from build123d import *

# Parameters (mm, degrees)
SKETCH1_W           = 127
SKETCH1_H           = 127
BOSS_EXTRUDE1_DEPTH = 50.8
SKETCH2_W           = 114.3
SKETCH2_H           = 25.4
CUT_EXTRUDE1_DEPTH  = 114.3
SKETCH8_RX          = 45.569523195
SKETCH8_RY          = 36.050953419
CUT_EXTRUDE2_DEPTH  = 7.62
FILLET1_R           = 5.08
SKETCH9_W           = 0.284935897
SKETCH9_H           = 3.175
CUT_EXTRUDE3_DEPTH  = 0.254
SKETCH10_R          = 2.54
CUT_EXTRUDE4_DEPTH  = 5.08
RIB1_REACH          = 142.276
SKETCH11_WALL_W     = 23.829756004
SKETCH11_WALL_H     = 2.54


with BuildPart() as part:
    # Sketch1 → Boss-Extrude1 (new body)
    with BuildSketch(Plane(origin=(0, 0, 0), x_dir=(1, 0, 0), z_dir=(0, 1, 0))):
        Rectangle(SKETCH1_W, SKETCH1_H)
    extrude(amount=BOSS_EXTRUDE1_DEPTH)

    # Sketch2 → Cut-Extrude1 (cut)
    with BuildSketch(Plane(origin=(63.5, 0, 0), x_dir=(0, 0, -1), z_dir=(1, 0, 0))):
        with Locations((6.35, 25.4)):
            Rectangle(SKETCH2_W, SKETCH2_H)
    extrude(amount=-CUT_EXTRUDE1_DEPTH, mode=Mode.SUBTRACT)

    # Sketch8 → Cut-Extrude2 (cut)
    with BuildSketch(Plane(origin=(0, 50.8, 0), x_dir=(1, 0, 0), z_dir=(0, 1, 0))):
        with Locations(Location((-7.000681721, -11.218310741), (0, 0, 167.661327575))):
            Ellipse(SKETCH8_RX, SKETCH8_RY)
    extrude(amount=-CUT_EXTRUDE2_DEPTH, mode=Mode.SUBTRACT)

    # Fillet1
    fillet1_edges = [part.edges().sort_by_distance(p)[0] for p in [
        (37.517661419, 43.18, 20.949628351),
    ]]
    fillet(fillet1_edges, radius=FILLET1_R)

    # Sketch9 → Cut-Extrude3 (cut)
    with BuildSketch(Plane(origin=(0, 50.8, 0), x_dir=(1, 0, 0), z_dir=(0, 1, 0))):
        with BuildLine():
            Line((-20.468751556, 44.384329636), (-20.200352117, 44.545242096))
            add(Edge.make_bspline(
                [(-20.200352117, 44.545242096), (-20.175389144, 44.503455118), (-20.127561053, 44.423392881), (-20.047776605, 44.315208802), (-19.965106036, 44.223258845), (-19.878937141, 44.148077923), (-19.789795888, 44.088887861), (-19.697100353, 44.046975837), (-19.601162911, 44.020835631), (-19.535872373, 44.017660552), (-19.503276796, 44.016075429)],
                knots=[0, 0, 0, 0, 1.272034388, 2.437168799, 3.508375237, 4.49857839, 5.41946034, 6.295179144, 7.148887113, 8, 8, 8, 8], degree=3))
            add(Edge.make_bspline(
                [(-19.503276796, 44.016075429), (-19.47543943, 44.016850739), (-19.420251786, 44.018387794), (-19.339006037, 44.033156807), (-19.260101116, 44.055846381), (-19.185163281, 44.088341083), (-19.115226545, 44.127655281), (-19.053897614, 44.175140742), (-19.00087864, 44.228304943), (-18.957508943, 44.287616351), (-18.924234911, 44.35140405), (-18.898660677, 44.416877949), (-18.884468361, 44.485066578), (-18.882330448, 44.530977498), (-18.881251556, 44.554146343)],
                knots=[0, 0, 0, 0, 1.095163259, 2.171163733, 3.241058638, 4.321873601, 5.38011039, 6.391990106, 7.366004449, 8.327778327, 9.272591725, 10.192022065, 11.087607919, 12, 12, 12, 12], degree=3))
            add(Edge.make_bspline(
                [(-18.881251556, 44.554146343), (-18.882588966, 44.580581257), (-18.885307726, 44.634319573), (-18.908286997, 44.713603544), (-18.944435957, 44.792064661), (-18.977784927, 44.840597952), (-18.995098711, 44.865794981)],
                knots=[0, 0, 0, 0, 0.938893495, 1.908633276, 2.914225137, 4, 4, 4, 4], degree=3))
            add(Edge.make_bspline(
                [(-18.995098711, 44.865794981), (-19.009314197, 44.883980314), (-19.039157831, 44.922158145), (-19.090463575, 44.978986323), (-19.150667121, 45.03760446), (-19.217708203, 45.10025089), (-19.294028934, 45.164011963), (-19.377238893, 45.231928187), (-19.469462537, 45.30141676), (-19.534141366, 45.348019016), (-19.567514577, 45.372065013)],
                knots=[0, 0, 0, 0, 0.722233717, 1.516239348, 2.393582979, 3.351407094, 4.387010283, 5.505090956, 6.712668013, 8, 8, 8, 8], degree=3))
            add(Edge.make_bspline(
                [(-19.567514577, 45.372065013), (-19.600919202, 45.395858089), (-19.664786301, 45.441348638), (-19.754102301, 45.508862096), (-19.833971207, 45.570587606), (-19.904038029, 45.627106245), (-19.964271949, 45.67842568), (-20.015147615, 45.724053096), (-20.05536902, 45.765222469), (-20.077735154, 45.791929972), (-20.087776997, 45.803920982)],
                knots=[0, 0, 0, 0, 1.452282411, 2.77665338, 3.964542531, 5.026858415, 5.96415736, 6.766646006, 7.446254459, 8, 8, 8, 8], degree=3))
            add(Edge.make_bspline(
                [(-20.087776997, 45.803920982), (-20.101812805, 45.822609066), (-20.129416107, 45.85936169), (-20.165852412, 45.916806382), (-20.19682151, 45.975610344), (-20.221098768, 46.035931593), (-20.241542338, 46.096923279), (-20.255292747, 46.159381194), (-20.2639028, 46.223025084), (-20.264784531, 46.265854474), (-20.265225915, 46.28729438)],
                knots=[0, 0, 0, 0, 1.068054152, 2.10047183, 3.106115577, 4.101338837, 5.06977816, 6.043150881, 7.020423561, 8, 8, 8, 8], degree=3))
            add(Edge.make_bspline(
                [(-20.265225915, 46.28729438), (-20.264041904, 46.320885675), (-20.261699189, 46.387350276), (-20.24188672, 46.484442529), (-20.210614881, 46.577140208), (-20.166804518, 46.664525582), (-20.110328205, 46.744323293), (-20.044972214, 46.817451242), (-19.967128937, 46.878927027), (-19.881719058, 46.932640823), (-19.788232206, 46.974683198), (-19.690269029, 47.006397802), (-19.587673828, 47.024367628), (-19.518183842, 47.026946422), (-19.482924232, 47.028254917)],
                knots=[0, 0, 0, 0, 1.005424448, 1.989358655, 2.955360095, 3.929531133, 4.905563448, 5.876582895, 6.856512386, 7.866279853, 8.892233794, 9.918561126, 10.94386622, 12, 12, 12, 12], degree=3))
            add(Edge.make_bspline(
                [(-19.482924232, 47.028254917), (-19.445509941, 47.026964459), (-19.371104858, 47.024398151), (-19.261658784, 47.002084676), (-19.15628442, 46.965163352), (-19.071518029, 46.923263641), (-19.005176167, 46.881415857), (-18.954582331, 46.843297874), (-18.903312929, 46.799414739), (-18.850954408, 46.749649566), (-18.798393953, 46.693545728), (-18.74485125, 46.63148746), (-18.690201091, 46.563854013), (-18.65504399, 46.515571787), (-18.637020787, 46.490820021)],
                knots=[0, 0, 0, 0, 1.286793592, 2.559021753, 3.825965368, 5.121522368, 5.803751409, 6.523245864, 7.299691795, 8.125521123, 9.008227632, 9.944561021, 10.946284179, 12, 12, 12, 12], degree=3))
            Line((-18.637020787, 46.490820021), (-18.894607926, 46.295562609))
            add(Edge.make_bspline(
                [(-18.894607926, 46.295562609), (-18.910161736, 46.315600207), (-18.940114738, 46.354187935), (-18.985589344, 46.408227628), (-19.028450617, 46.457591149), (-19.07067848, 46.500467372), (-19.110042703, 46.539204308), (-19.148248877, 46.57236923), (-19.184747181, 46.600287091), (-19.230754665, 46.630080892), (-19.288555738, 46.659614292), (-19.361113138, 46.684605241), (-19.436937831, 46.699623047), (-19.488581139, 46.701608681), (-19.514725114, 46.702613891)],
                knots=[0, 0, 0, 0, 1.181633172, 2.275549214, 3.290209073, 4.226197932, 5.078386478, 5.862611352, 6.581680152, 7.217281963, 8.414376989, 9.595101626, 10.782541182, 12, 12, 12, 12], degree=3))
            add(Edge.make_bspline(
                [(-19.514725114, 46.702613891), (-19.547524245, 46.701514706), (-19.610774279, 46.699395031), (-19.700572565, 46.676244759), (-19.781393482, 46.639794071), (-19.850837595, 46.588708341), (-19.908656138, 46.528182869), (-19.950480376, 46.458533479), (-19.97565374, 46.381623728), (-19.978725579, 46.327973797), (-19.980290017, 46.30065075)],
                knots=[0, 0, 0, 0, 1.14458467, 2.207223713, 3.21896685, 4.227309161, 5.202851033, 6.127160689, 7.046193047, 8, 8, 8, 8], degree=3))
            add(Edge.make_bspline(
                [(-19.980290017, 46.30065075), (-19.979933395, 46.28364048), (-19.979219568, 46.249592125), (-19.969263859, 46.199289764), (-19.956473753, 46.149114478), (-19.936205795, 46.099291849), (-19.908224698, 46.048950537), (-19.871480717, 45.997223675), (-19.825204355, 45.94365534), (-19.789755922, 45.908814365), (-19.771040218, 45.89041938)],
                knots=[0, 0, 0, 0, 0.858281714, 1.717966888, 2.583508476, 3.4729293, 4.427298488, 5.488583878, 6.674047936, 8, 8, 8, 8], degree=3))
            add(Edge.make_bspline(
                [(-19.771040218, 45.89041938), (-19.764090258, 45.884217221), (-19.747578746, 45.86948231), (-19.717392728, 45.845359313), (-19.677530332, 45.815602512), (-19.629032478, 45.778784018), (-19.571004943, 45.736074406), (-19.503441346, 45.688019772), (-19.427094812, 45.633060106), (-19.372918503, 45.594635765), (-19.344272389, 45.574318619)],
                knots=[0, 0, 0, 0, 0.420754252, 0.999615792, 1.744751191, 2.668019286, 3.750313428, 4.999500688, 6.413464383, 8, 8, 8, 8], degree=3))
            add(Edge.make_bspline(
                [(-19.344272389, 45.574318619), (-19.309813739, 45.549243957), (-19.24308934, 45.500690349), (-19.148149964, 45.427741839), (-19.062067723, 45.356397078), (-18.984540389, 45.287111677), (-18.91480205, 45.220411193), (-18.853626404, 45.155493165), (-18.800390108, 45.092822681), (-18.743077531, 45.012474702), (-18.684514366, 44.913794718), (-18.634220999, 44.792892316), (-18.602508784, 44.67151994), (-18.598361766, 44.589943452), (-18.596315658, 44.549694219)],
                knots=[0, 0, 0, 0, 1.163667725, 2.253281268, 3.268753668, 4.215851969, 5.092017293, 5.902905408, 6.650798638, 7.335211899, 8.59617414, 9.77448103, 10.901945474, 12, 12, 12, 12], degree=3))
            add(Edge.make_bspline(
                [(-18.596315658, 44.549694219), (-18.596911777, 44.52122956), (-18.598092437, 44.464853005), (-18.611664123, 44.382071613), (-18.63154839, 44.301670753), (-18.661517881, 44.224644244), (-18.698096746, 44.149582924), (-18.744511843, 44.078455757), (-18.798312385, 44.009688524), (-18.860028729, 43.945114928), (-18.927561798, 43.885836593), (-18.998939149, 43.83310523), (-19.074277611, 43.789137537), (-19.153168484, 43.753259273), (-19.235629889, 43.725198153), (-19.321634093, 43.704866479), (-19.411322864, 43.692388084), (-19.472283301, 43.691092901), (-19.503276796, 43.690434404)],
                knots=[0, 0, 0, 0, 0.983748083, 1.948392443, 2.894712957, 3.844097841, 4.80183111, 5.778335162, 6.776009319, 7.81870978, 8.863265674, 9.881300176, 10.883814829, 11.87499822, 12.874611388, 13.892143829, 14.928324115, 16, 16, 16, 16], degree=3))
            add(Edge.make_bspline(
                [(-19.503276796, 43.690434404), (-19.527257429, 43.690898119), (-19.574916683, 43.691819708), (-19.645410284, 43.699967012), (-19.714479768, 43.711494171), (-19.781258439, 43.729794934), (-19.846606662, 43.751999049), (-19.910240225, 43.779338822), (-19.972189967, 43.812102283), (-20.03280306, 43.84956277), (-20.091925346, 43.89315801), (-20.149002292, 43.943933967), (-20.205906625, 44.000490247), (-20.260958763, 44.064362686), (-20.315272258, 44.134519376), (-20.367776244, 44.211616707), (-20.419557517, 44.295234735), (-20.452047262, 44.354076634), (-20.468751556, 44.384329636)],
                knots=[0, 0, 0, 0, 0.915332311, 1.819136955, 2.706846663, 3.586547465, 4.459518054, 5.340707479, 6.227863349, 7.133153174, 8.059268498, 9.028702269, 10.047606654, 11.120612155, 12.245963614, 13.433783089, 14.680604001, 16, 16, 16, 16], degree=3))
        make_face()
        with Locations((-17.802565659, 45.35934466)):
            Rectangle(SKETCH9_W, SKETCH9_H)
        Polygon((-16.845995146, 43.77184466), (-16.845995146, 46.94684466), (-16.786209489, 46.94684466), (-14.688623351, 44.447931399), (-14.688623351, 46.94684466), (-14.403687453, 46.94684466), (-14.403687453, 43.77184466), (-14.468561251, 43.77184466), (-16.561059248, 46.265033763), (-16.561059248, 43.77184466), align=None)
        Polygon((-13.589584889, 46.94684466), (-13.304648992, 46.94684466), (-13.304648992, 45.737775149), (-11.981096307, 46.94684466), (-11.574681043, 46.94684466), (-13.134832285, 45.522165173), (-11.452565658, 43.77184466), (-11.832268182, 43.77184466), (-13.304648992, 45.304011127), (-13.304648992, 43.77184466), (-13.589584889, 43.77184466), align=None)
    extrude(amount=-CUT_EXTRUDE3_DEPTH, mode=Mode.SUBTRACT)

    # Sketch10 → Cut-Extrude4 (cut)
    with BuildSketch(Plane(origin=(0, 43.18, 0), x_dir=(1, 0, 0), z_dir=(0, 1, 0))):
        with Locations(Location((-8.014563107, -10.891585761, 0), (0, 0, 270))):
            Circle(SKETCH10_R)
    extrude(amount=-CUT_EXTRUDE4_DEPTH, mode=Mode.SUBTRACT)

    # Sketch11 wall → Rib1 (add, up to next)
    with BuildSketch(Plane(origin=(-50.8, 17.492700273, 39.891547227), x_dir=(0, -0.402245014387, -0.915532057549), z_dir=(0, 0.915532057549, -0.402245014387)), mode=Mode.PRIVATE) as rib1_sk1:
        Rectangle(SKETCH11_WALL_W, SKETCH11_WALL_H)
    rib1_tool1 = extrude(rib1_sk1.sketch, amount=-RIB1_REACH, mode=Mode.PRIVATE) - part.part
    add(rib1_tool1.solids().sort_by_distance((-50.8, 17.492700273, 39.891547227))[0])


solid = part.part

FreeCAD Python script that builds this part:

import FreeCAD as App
import Part
import Sketcher
Q = App.Units.Quantity


def edges_at(feature, points):
    """Names of the edges that pass closest to the given points."""
    edges = feature.Shape.Edges
    near = lambda p: min(range(len(edges)), key=lambda i: edges[i].distToShape(Part.Vertex(*p))[0])
    return sorted({f"Edge{near(p) + 1}" for p in points})


def add_polygon(sketch, points):
    """Adds a closed chain of lines whose ends are joined by coincident constraints."""
    first, n = sketch.GeometryCount, len(points)
    for a, b in zip(points, points[1:] + points[:1]):
        sketch.addGeometry(Part.LineSegment(App.Vector(*a, 0), App.Vector(*b, 0)), False)
    for i in range(n):
        sketch.addConstraint(Sketcher.Constraint("Coincident", first + i, 2, first + (i + 1) % n, 1))

doc = App.newDocument("Part")
params = doc.addObject("Spreadsheet::Sheet", "Params")
for row, (alias, value) in enumerate([
    ("sketch1_width", "5 in"),
    ("pad1_length", "2 in"),
    ("sketch2_width", "1 in"),
    ("sketch2_height", "4.5 in"),
    ("pocket1_length", "4.5 in"),
    ("pocket2_length", "0.3 in"),
    ("fillet_radius", "0.2 in"),
    ("sketch4_height", "0.125 in"),
    ("pocket3_length", "0.01 in"),
    ("sketch5_diameter", "0.2 in"),
    ("pocket4_length", "0.2 in"),
    ("sketch6_height", "0.1 in"),
    ("pad2_length", "8.775741 mm"),
], start=1):
    params.set(f"A{row}", alias)
    params.set(f"B{row}", "=" + value)
    params.setAlias(f"B{row}", alias)

body = doc.addObject("PartDesign::Body", "Body")

# Sketch on XZ plane
sketch1 = body.newObject("Sketcher::SketchObject", "Sketch")
sketch1.AttachmentSupport = (doc.getObject("XZ_Plane"), [""])
sketch1.MapMode = "FlatFace"
add_polygon(sketch1, [(-64, -64), (-64, 64), (64, 64), (64, -64)])  # lines 0-3
sketch1.addConstraint([
    Sketcher.Constraint("Vertical", 0),
    Sketcher.Constraint("Horizontal", 1),
    Sketcher.Constraint("Vertical", 2),
    Sketcher.Constraint("Horizontal", 3),
    Sketcher.Constraint("Symmetric", 0, 2, 2, 2, -1, 1),
    Sketcher.Constraint("Equal", 3, 0),
    Sketcher.Constraint("DistanceX", 1, 1, 1, 2, Q("5 in")),
])
sketch1.setExpression("Constraints[10]", "Params.sketch1_width")
pad1 = body.newObject("PartDesign::Pad", "Pad")
pad1.Profile = sketch1
pad1.setExpression("Length", "Params.pad1_length")
pad1.Reversed = True

# Sketch on YZ plane
sketch2 = body.newObject("Sketcher::SketchObject", "Sketch001")
sketch2.AttachmentSupport = (doc.getObject("YZ_Plane"), [""])
sketch2.MapMode = "FlatFace"
sketch2.AttachmentOffset = App.Placement(App.Vector(0, 0, 2.5 * 25.4), App.Rotation())
add_polygon(sketch2, [(38, 51), (13, 51), (13, -64), (38, -64)])  # lines 0-3
sketch2.addConstraint([
    Sketcher.Constraint("Horizontal", 0),
    Sketcher.Constraint("Vertical", 1),
    Sketcher.Constraint("Horizontal", 2),
    Sketcher.Constraint("Vertical", 3),
    Sketcher.Constraint("DistanceX", 0, 2, 0, 1, Q("1 in")),
    Sketcher.Constraint("DistanceY", 1, 2, 1, 1, Q("4.5 in")),
    Sketcher.Constraint("DistanceY", -1, 1, 0, 2, Q("2 in")),
    Sketcher.Constraint("DistanceX", -1, 1, 0, 2, Q("0.5 in")),
])
sketch2.setExpression("Constraints[8]", "Params.sketch2_width")
sketch2.setExpression("Constraints[9]", "Params.sketch2_height")
pocket1 = body.newObject("PartDesign::Pocket", "Pocket")
pocket1.Profile = sketch2
pocket1.setExpression("Length", "Params.pocket1_length")

# Sketch on XZ plane
sketch3 = body.newObject("Sketcher::SketchObject", "Sketch002")
sketch3.AttachmentSupport = (doc.getObject("XZ_Plane"), [""])
sketch3.MapMode = "FlatFace"
sketch3.AttachmentOffset = App.Placement(App.Vector(0, 0, -2 * 25.4), App.Rotation())
sketch3.addGeometry(Part.Ellipse(App.Vector(-51.51762, 1.480568, 0), App.Vector(0.70304, -23.999922, 0), App.Vector(-7.000682, 11.218311, 0)), False)
sketch3.addConstraint(Sketcher.Constraint("Block", 0))
pocket2 = body.newObject("PartDesign::Pocket", "Pocket001")
pocket2.Profile = sketch3
pocket2.setExpression("Length", "Params.pocket2_length")
pocket2.Reversed = True
doc.recompute()

fillet = body.newObject("PartDesign::Fillet", "Fillet")
fillet.Base = (pocket2, edges_at(pocket2, [(37.518, 43.18, 20.95)]))
fillet.setExpression("Radius", "Params.fillet_radius")

# Sketch on XZ plane
sketch4 = body.newObject("Sketcher::SketchObject", "Sketch003")
sketch4.AttachmentSupport = (doc.getObject("XZ_Plane"), [""])
sketch4.MapMode = "FlatFace"
sketch4.AttachmentOffset = App.Placement(App.Vector(0, 0, -2 * 25.4), App.Rotation())
sketch4.addGeometry(Part.LineSegment(App.Vector(-20.200352, -44.545242, 0), App.Vector(-20.468752, -44.38433, 0)), False)  # 0
sketch4.addGeometry(Part.BSplineCurve([App.Vector(-19.503277, -43.690434, 0), App.Vector(-19.527257, -43.690898, 0), App.Vector(-19.574917, -43.69182, 0), App.Vector(-19.64541, -43.699967, 0), App.Vector(-19.71448, -43.711494, 0), App.Vector(-19.781258, -43.729795, 0), App.Vector(-19.846607, -43.751999, 0), App.Vector(-19.91024, -43.779339, 0), App.Vector(-19.97219, -43.812102, 0), App.Vector(-20.032803, -43.849563, 0), App.Vector(-20.091925, -43.893158, 0), App.Vector(-20.149002, -43.943934, 0), App.Vector(-20.205907, -44.00049, 0), App.Vector(-20.260959, -44.064363, 0), App.Vector(-20.315272, -44.134519, 0), App.Vector(-20.367776, -44.211617, 0), App.Vector(-20.419558, -44.295235, 0), App.Vector(-20.452047, -44.354077, 0), App.Vector(-20.468752, -44.38433, 0)], [4, 1, 1, 1, 1, 1, 1, 1, 1, 1, 1, 1, 1, 1, 1, 1, 4], [0, 0.915332311, 1.819136955, 2.706846663, 3.586547465, 4.459518054, 5.340707479, 6.227863349, 7.133153174, 8.059268498, 9.028702269, 10.047606654, 11.120612155, 12.245963614, 13.433783089, 14.680604001, 16], False, 3, [1, 1, 1, 1, 1, 1, 1, 1, 1, 1, 1, 1, 1, 1, 1, 1, 1, 1, 1], False), False)  # 1
sketch4.addGeometry(Part.BSplineCurve([App.Vector(-18.596316, -44.549694, 0), App.Vector(-18.596912, -44.52123, 0), App.Vector(-18.598092, -44.464853, 0), App.Vector(-18.611664, -44.382072, 0), App.Vector(-18.631548, -44.301671, 0), App.Vector(-18.661518, -44.224644, 0), App.Vector(-18.698097, -44.149583, 0), App.Vector(-18.744512, -44.078456, 0), App.Vector(-18.798312, -44.009689, 0), App.Vector(-18.860029, -43.945115, 0), App.Vector(-18.927562, -43.885837, 0), App.Vector(-18.998939, -43.833105, 0), App.Vector(-19.074278, -43.789138, 0), App.Vector(-19.153168, -43.753259, 0), App.Vector(-19.23563, -43.725198, 0), App.Vector(-19.321634, -43.704866, 0), App.Vector(-19.411323, -43.692388, 0), App.Vector(-19.472283, -43.691093, 0), App.Vector(-19.503277, -43.690434, 0)], [4, 1, 1, 1, 1, 1, 1, 1, 1, 1, 1, 1, 1, 1, 1, 1, 4], [0, 0.983748083, 1.948392443, 2.894712957, 3.844097841, 4.80183111, 5.778335162, 6.776009319, 7.81870978, 8.863265674, 9.881300176, 10.883814829, 11.87499822, 12.874611388, 13.892143829, 14.928324115, 16], False, 3, [1, 1, 1, 1, 1, 1, 1, 1, 1, 1, 1, 1, 1, 1, 1, 1, 1, 1, 1], False), False)  # 2
sketch4.addGeometry(Part.BSplineCurve([App.Vector(-19.344272, -45.574319, 0), App.Vector(-19.309814, -45.549244, 0), App.Vector(-19.243089, -45.50069, 0), App.Vector(-19.14815, -45.427742, 0), App.Vector(-19.062068, -45.356397, 0), App.Vector(-18.98454, -45.287112, 0), App.Vector(-18.914802, -45.220411, 0), App.Vector(-18.853626, -45.155493, 0), App.Vector(-18.80039, -45.092823, 0), App.Vector(-18.743078, -45.012475, 0), App.Vector(-18.684514, -44.913795, 0), App.Vector(-18.634221, -44.792892, 0), App.Vector(-18.602509, -44.67152, 0), App.Vector(-18.598362, -44.589943, 0), App.Vector(-18.596316, -44.549694, 0)], [4, 1, 1, 1, 1, 1, 1, 1, 1, 1, 1, 1, 4], [0, 1.163667725, 2.253281268, 3.268753668, 4.215851969, 5.092017293, 5.902905408, 6.650798638, 7.335211899, 8.59617414, 9.77448103, 10.901945474, 12], False, 3, [1, 1, 1, 1, 1, 1, 1, 1, 1, 1, 1, 1, 1, 1, 1], False), False)  # 3
sketch4.addGeometry(Part.BSplineCurve([App.Vector(-19.77104, -45.890419, 0), App.Vector(-19.76409, -45.884217, 0), App.Vector(-19.747579, -45.869482, 0), App.Vector(-19.717393, -45.845359, 0), App.Vector(-19.67753, -45.815603, 0), App.Vector(-19.629032, -45.778784, 0), App.Vector(-19.571005, -45.736074, 0), App.Vector(-19.503441, -45.68802, 0), App.Vector(-19.427095, -45.63306, 0), App.Vector(-19.372919, -45.594636, 0), App.Vector(-19.344272, -45.574319, 0)], [4, 1, 1, 1, 1, 1, 1, 1, 4], [0, 0.420754252, 0.999615792, 1.744751191, 2.668019286, 3.750313428, 4.999500688, 6.413464383, 8], False, 3, [1, 1, 1, 1, 1, 1, 1, 1, 1, 1, 1], False), False)  # 4
sketch4.addGeometry(Part.BSplineCurve([App.Vector(-19.98029, -46.300651, 0), App.Vector(-19.979933, -46.28364, 0), App.Vector(-19.97922, -46.249592, 0), App.Vector(-19.969264, -46.19929, 0), App.Vector(-19.956474, -46.149114, 0), App.Vector(-19.936206, -46.099292, 0), App.Vector(-19.908225, -46.048951, 0), App.Vector(-19.871481, -45.997224, 0), App.Vector(-19.825204, -45.943655, 0), App.Vector(-19.789756, -45.908814, 0), App.Vector(-19.77104, -45.890419, 0)], [4, 1, 1, 1, 1, 1, 1, 1, 4], [0, 0.858281714, 1.717966888, 2.583508476, 3.4729293, 4.427298488, 5.488583878, 6.674047936, 8], False, 3, [1, 1, 1, 1, 1, 1, 1, 1, 1, 1, 1], False), False)  # 5
sketch4.addGeometry(Part.BSplineCurve([App.Vector(-19.514725, -46.702614, 0), App.Vector(-19.547524, -46.701515, 0), App.Vector(-19.610774, -46.699395, 0), App.Vector(-19.700573, -46.676245, 0), App.Vector(-19.781393, -46.639794, 0), App.Vector(-19.850838, -46.588708, 0), App.Vector(-19.908656, -46.528183, 0), App.Vector(-19.95048, -46.458533, 0), App.Vector(-19.975654, -46.381624, 0), App.Vector(-19.978726, -46.327974, 0), App.Vector(-19.98029, -46.300651, 0)], [4, 1, 1, 1, 1, 1, 1, 1, 4], [0, 1.14458467, 2.207223713, 3.21896685, 4.227309161, 5.202851033, 6.127160689, 7.046193047, 8], False, 3, [1, 1, 1, 1, 1, 1, 1, 1, 1, 1, 1], False), False)  # 6
sketch4.addGeometry(Part.BSplineCurve([App.Vector(-18.894608, -46.295563, 0), App.Vector(-18.910162, -46.3156, 0), App.Vector(-18.940115, -46.354188, 0), App.Vector(-18.985589, -46.408228, 0), App.Vector(-19.028451, -46.457591, 0), App.Vector(-19.070678, -46.500467, 0), App.Vector(-19.110043, -46.539204, 0), App.Vector(-19.148249, -46.572369, 0), App.Vector(-19.184747, -46.600287, 0), App.Vector(-19.230755, -46.630081, 0), App.Vector(-19.288556, -46.659614, 0), App.Vector(-19.361113, -46.684605, 0), App.Vector(-19.436938, -46.699623, 0), App.Vector(-19.488581, -46.701609, 0), App.Vector(-19.514725, -46.702614, 0)], [4, 1, 1, 1, 1, 1, 1, 1, 1, 1, 1, 1, 4], [0, 1.181633172, 2.275549214, 3.290209073, 4.226197932, 5.078386478, 5.862611352, 6.581680152, 7.217281963, 8.414376989, 9.595101626, 10.782541182, 12], False, 3, [1, 1, 1, 1, 1, 1, 1, 1, 1, 1, 1, 1, 1, 1, 1], False), False)  # 7
sketch4.addGeometry(Part.LineSegment(App.Vector(-18.894608, -46.295563, 0), App.Vector(-18.637021, -46.49082, 0)), False)  # 8
sketch4.addGeometry(Part.BSplineCurve([App.Vector(-19.482924, -47.028255, 0), App.Vector(-19.44551, -47.026964, 0), App.Vector(-19.371105, -47.024398, 0), App.Vector(-19.261659, -47.002085, 0), App.Vector(-19.156284, -46.965163, 0), App.Vector(-19.071518, -46.923264, 0), App.Vector(-19.005176, -46.881416, 0), App.Vector(-18.954582, -46.843298, 0), App.Vector(-18.903313, -46.799415, 0), App.Vector(-18.850954, -46.74965, 0), App.Vector(-18.798394, -46.693546, 0), App.Vector(-18.744851, -46.631487, 0), App.Vector(-18.690201, -46.563854, 0), App.Vector(-18.655044, -46.515572, 0), App.Vector(-18.637021, -46.49082, 0)], [4, 1, 1, 1, 1, 1, 1, 1, 1, 1, 1, 1, 4], [0, 1.286793592, 2.559021753, 3.825965368, 5.121522368, 5.803751409, 6.523245864, 7.299691795, 8.125521123, 9.008227632, 9.944561021, 10.946284179, 12], False, 3, [1, 1, 1, 1, 1, 1, 1, 1, 1, 1, 1, 1, 1, 1, 1], False), False)  # 9
sketch4.addGeometry(Part.BSplineCurve([App.Vector(-20.265226, -46.287294, 0), App.Vector(-20.264042, -46.320886, 0), App.Vector(-20.261699, -46.38735, 0), App.Vector(-20.241887, -46.484443, 0), App.Vector(-20.210615, -46.57714, 0), App.Vector(-20.166805, -46.664526, 0), App.Vector(-20.110328, -46.744323, 0), App.Vector(-20.044972, -46.817451, 0), App.Vector(-19.967129, -46.878927, 0), App.Vector(-19.881719, -46.932641, 0), App.Vector(-19.788232, -46.974683, 0), App.Vector(-19.690269, -47.006398, 0), App.Vector(-19.587674, -47.024368, 0), App.Vector(-19.518184, -47.026946, 0), App.Vector(-19.482924, -47.028255, 0)], [4, 1, 1, 1, 1, 1, 1, 1, 1, 1, 1, 1, 4], [0, 1.005424448, 1.989358655, 2.955360095, 3.929531133, 4.905563448, 5.876582895, 6.856512386, 7.866279853, 8.892233794, 9.918561126, 10.94386622, 12], False, 3, [1, 1, 1, 1, 1, 1, 1, 1, 1, 1, 1, 1, 1, 1, 1], False), False)  # 10
sketch4.addGeometry(Part.BSplineCurve([App.Vector(-20.087777, -45.803921, 0), App.Vector(-20.101813, -45.822609, 0), App.Vector(-20.129416, -45.859362, 0), App.Vector(-20.165852, -45.916806, 0), App.Vector(-20.196822, -45.97561, 0), App.Vector(-20.221099, -46.035932, 0), App.Vector(-20.241542, -46.096923, 0), App.Vector(-20.255293, -46.159381, 0), App.Vector(-20.263903, -46.223025, 0), App.Vector(-20.264785, -46.265854, 0), App.Vector(-20.265226, -46.287294, 0)], [4, 1, 1, 1, 1, 1, 1, 1, 4], [0, 1.068054152, 2.10047183, 3.106115577, 4.101338837, 5.06977816, 6.043150881, 7.020423561, 8], False, 3, [1, 1, 1, 1, 1, 1, 1, 1, 1, 1, 1], False), False)  # 11
sketch4.addGeometry(Part.BSplineCurve([App.Vector(-19.567515, -45.372065, 0), App.Vector(-19.600919, -45.395858, 0), App.Vector(-19.664786, -45.441349, 0), App.Vector(-19.754102, -45.508862, 0), App.Vector(-19.833971, -45.570588, 0), App.Vector(-19.904038, -45.627106, 0), App.Vector(-19.964272, -45.678426, 0), App.Vector(-20.015148, -45.724053, 0), App.Vector(-20.055369, -45.765222, 0), App.Vector(-20.077735, -45.79193, 0), App.Vector(-20.087777, -45.803921, 0)], [4, 1, 1, 1, 1, 1, 1, 1, 4], [0, 1.452282411, 2.77665338, 3.964542531, 5.026858415, 5.96415736, 6.766646006, 7.446254459, 8], False, 3, [1, 1, 1, 1, 1, 1, 1, 1, 1, 1, 1], False), False)  # 12
sketch4.addGeometry(Part.BSplineCurve([App.Vector(-18.995099, -44.865795, 0), App.Vector(-19.009314, -44.88398, 0), App.Vector(-19.039158, -44.922158, 0), App.Vector(-19.090464, -44.978986, 0), App.Vector(-19.150667, -45.037604, 0), App.Vector(-19.217708, -45.100251, 0), App.Vector(-19.294029, -45.164012, 0), App.Vector(-19.377239, -45.231928, 0), App.Vector(-19.469463, -45.301417, 0), App.Vector(-19.534141, -45.348019, 0), App.Vector(-19.567515, -45.372065, 0)], [4, 1, 1, 1, 1, 1, 1, 1, 4], [0, 0.722233717, 1.516239348, 2.393582979, 3.351407094, 4.387010283, 5.505090956, 6.712668013, 8], False, 3, [1, 1, 1, 1, 1, 1, 1, 1, 1, 1, 1], False), False)  # 13
sketch4.addGeometry(Part.BSplineCurve([App.Vector(-18.881252, -44.554146, 0), App.Vector(-18.882589, -44.580581, 0), App.Vector(-18.885308, -44.63432, 0), App.Vector(-18.908287, -44.713604, 0), App.Vector(-18.944436, -44.792065, 0), App.Vector(-18.977785, -44.840598, 0), App.Vector(-18.995099, -44.865795, 0)], [4, 1, 1, 1, 4], [0, 0.938893495, 1.908633276, 2.914225137, 4], False, 3, [1, 1, 1, 1, 1, 1, 1], False), False)  # 14
sketch4.addGeometry(Part.BSplineCurve([App.Vector(-19.503277, -44.016075, 0), App.Vector(-19.475439, -44.016851, 0), App.Vector(-19.420252, -44.018388, 0), App.Vector(-19.339006, -44.033157, 0), App.Vector(-19.260101, -44.055846, 0), App.Vector(-19.185163, -44.088341, 0), App.Vector(-19.115227, -44.127655, 0), App.Vector(-19.053898, -44.175141, 0), App.Vector(-19.000879, -44.228305, 0), App.Vector(-18.957509, -44.287616, 0), App.Vector(-18.924235, -44.351404, 0), App.Vector(-18.898661, -44.416878, 0), App.Vector(-18.884468, -44.485067, 0), App.Vector(-18.88233, -44.530977, 0), App.Vector(-18.881252, -44.554146, 0)], [4, 1, 1, 1, 1, 1, 1, 1, 1, 1, 1, 1, 4], [0, 1.095163259, 2.171163733, 3.241058638, 4.321873601, 5.38011039, 6.391990106, 7.366004449, 8.327778327, 9.272591725, 10.192022065, 11.087607919, 12], False, 3, [1, 1, 1, 1, 1, 1, 1, 1, 1, 1, 1, 1, 1, 1, 1], False), False)  # 15
sketch4.addGeometry(Part.BSplineCurve([App.Vector(-20.200352, -44.545242, 0), App.Vector(-20.175389, -44.503455, 0), App.Vector(-20.127561, -44.423393, 0), App.Vector(-20.047777, -44.315209, 0), App.Vector(-19.965106, -44.223259, 0), App.Vector(-19.878937, -44.148078, 0), App.Vector(-19.789796, -44.088888, 0), App.Vector(-19.6971, -44.046976, 0), App.Vector(-19.601163, -44.020836, 0), App.Vector(-19.535872, -44.017661, 0), App.Vector(-19.503277, -44.016075, 0)], [4, 1, 1, 1, 1, 1, 1, 1, 4], [0, 1.272034388, 2.437168799, 3.508375237, 4.49857839, 5.41946034, 6.295179144, 7.148887113, 8], False, 3, [1, 1, 1, 1, 1, 1, 1, 1, 1, 1, 1], False), False)  # 16
add_polygon(sketch4, [(-17.945034, -46.946845), (-17.945034, -43.771845), (-17.660098, -43.771845), (-17.660098, -46.946845)])  # lines 17-20
add_polygon(sketch4, [(-16.845995, -46.946845), (-16.845995, -43.771845), (-16.561059, -43.771845), (-16.561059, -46.265034), (-14.468561, -43.771845), (-14.403687, -43.771845), (-14.403687, -46.946845), (-14.688623, -46.946845), (-14.688623, -44.447931), (-16.786209, -46.946845)])  # lines 21-30
add_polygon(sketch4, [(-13.304649, -46.946845), (-13.589585, -46.946845), (-13.589585, -43.771845), (-13.304649, -43.771845), (-13.304649, -45.304011), (-11.832268, -43.771845), (-11.452566, -43.771845), (-13.134832, -45.522165), (-11.574681, -46.946845), (-11.981096, -46.946845), (-13.304649, -45.737775)])  # lines 31-41
sketch4.addConstraint([
    Sketcher.Constraint("Block", 1),
    Sketcher.Constraint("Block", 2),
    Sketcher.Constraint("Block", 3),
    Sketcher.Constraint("Block", 4),
    Sketcher.Constraint("Block", 5),
    Sketcher.Constraint("Block", 6),
    Sketcher.Constraint("Block", 7),
    Sketcher.Constraint("Block", 9),
    Sketcher.Constraint("Block", 10),
    Sketcher.Constraint("Block", 11),
    Sketcher.Constraint("Block", 12),
    Sketcher.Constraint("Block", 13),
    Sketcher.Constraint("Block", 14),
    Sketcher.Constraint("Block", 15),
    Sketcher.Constraint("Block", 16),
    Sketcher.Constraint("Coincident", 0, 2, 1, 2),
    Sketcher.Constraint("Coincident", 7, 1, 8, 1),
    Sketcher.Constraint("Coincident", 8, 2, 9, 2),
    Sketcher.Constraint("Coincident", 16, 1, 0, 1),
    Sketcher.Constraint("Vertical", 17),
    Sketcher.Constraint("Horizontal", 18),
    Sketcher.Constraint("Vertical", 19),
    Sketcher.Constraint("Horizontal", 20),
    Sketcher.Constraint("Vertical", 21),
    Sketcher.Constraint("Horizontal", 22),
    Sketcher.Constraint("Vertical", 23),
    Sketcher.Constraint("Horizontal", 25),
    Sketcher.Constraint("Vertical", 26),
    Sketcher.Constraint("Horizontal", 27),
    Sketcher.Constraint("Vertical", 28),
    Sketcher.Constraint("Horizontal", 30),
    Sketcher.Constraint("Horizontal", 31),
    Sketcher.Constraint("Vertical", 32),
    Sketcher.Constraint("Horizontal", 33),
    Sketcher.Constraint("Vertical", 34),
    Sketcher.Constraint("Horizontal", 36),
    Sketcher.Constraint("Horizontal", 39),
    Sketcher.Constraint("Vertical", 41),
    Sketcher.Constraint("Horizontal", 18, 2, 21, 2),
    Sketcher.Constraint("Horizontal", 22, 2, 24, 2),
    Sketcher.Constraint("Horizontal", 20, 2, 26, 2),
    Sketcher.Constraint("Horizontal", 27, 2, 29, 2),
    Sketcher.Constraint("Horizontal", 30, 2, 31, 2),
    Sketcher.Constraint("Horizontal", 25, 2, 32, 2),
    Sketcher.Constraint("Horizontal", 33, 2, 35, 2),
    Sketcher.Constraint("Horizontal", 31, 2, 38, 2),
    Sketcher.Constraint("Vertical", 34, 2, 40, 2),
    Sketcher.Constraint("Equal", 20, 22),
    Sketcher.Constraint("Equal", 22, 27),
    Sketcher.Constraint("Equal", 27, 31),
    Sketcher.Constraint("DistanceY", 17, 1, 17, 2, Q("0.125 in")),
    Sketcher.Constraint("DistanceY", 40, 2, -1, 1, Q("1.8006998 in")),
    Sketcher.Constraint("DistanceY", 23, 2, 23, 1, 2.493189),
    Sketcher.Constraint("DistanceY", 41, 2, 41, 1, 1.20907),
    Sketcher.Constraint("Distance", 29, 3.262581),
    Sketcher.Constraint("DistanceX", 18, 1, 18, 2, 0.284936),
    Sketcher.Constraint("DistanceX", 25, 1, 25, 2, 0.064874),
    Sketcher.Constraint("DistanceX", 30, 2, 30, 1, 0.059786),
    Sketcher.Constraint("DistanceX", 36, 1, 36, 2, 0.379703),
    Sketcher.Constraint("DistanceX", 39, 2, 39, 1, 0.406415),
    Sketcher.Constraint("DistanceY", 28, 1, 28, 2, 2.498913),
    Sketcher.Constraint("DistanceY", 34, 2, 34, 1, 1.532166),
    Sketcher.Constraint("DistanceX", 22, 2, -1, 1, 16.561059),
    Sketcher.Constraint("DistanceX", 33, 2, -1, 1, 13.304649),
    Sketcher.Constraint("DistanceX", 35, 2, -1, 1, 11.832268),
    Sketcher.Constraint("DistanceX", 38, 2, -1, 1, 11.574681),
    Sketcher.Constraint("DistanceX", 17, 2, 21, 2, 1.099038),
    Sketcher.Constraint("DistanceY", 31, 2, 37, 2, 1.424679),
    Sketcher.Constraint("DistanceX", 28, 2, 37, 2, 1.553791),
])
sketch4.setExpression("Constraints[75]", "Params.sketch4_height")
pocket3 = body.newObject("PartDesign::Pocket", "Pocket002")
pocket3.Profile = sketch4
pocket3.setExpression("Length", "Params.pocket3_length")
pocket3.Reversed = True

# Sketch on XZ plane
sketch5 = body.newObject("Sketcher::SketchObject", "Sketch004")
sketch5.AttachmentSupport = (doc.getObject("XZ_Plane"), [""])
sketch5.MapMode = "FlatFace"
sketch5.AttachmentOffset = App.Placement(App.Vector(0, 0, -1.7 * 25.4), App.Rotation())
sketch5.addGeometry(Part.Circle(App.Vector(-8, 10.9, 0), App.Vector(0, 0, 1), 2.5), False)
sketch5.addConstraint([
    Sketcher.Constraint("Diameter", 0, Q("0.2 in")),
    Sketcher.Constraint("DistanceX", 0, 3, -1, 1, 8.014563),
    Sketcher.Constraint("DistanceY", -1, 1, 0, 3, 10.891586),
])
sketch5.setExpression("Constraints[0]", "Params.sketch5_diameter")
pocket4 = body.newObject("PartDesign::Pocket", "Pocket003")
pocket4.Profile = sketch5
pocket4.setExpression("Length", "Params.pocket4_length")
pocket4.Reversed = True

# Sketch on an angled plane
sketch6 = body.newObject("Sketcher::SketchObject", "Sketch005")
sketch6.Placement = App.Placement(App.Vector(-50.8, 17.4927, 39.891547), App.Rotation(App.Vector(0, -0.402245014, -0.915532058), App.Vector(-1.000000001, 0, 0), App.Vector(0, 0.915532058, -0.402245014), "ZXY"))
add_polygon(sketch6, [(-11.9, 1.3), (-11.9, -1.3), (11.9, -1.3), (11.9, 1.3)])  # lines 0-3
sketch6.addConstraint([
    Sketcher.Constraint("Vertical", 0),
    Sketcher.Constraint("Horizontal", 1),
    Sketcher.Constraint("Vertical", 2),
    Sketcher.Constraint("Horizontal", 3),
    Sketcher.Constraint("Symmetric", 0, 2, 2, 2, -1, 1),
    Sketcher.Constraint("DistanceY", 0, 2, 0, 1, Q("0.1 in")),
    Sketcher.Constraint("DistanceX", 1, 1, 1, 2, 23.829756),
])
sketch6.setExpression("Constraints[9]", "Params.sketch6_height")
pad2 = body.newObject("PartDesign::Pad", "Pad001")
pad2.Profile = sketch6
pad2.setExpression("Length", "Params.pad2_length")
pad2.Reversed = True

doc.recompute()
